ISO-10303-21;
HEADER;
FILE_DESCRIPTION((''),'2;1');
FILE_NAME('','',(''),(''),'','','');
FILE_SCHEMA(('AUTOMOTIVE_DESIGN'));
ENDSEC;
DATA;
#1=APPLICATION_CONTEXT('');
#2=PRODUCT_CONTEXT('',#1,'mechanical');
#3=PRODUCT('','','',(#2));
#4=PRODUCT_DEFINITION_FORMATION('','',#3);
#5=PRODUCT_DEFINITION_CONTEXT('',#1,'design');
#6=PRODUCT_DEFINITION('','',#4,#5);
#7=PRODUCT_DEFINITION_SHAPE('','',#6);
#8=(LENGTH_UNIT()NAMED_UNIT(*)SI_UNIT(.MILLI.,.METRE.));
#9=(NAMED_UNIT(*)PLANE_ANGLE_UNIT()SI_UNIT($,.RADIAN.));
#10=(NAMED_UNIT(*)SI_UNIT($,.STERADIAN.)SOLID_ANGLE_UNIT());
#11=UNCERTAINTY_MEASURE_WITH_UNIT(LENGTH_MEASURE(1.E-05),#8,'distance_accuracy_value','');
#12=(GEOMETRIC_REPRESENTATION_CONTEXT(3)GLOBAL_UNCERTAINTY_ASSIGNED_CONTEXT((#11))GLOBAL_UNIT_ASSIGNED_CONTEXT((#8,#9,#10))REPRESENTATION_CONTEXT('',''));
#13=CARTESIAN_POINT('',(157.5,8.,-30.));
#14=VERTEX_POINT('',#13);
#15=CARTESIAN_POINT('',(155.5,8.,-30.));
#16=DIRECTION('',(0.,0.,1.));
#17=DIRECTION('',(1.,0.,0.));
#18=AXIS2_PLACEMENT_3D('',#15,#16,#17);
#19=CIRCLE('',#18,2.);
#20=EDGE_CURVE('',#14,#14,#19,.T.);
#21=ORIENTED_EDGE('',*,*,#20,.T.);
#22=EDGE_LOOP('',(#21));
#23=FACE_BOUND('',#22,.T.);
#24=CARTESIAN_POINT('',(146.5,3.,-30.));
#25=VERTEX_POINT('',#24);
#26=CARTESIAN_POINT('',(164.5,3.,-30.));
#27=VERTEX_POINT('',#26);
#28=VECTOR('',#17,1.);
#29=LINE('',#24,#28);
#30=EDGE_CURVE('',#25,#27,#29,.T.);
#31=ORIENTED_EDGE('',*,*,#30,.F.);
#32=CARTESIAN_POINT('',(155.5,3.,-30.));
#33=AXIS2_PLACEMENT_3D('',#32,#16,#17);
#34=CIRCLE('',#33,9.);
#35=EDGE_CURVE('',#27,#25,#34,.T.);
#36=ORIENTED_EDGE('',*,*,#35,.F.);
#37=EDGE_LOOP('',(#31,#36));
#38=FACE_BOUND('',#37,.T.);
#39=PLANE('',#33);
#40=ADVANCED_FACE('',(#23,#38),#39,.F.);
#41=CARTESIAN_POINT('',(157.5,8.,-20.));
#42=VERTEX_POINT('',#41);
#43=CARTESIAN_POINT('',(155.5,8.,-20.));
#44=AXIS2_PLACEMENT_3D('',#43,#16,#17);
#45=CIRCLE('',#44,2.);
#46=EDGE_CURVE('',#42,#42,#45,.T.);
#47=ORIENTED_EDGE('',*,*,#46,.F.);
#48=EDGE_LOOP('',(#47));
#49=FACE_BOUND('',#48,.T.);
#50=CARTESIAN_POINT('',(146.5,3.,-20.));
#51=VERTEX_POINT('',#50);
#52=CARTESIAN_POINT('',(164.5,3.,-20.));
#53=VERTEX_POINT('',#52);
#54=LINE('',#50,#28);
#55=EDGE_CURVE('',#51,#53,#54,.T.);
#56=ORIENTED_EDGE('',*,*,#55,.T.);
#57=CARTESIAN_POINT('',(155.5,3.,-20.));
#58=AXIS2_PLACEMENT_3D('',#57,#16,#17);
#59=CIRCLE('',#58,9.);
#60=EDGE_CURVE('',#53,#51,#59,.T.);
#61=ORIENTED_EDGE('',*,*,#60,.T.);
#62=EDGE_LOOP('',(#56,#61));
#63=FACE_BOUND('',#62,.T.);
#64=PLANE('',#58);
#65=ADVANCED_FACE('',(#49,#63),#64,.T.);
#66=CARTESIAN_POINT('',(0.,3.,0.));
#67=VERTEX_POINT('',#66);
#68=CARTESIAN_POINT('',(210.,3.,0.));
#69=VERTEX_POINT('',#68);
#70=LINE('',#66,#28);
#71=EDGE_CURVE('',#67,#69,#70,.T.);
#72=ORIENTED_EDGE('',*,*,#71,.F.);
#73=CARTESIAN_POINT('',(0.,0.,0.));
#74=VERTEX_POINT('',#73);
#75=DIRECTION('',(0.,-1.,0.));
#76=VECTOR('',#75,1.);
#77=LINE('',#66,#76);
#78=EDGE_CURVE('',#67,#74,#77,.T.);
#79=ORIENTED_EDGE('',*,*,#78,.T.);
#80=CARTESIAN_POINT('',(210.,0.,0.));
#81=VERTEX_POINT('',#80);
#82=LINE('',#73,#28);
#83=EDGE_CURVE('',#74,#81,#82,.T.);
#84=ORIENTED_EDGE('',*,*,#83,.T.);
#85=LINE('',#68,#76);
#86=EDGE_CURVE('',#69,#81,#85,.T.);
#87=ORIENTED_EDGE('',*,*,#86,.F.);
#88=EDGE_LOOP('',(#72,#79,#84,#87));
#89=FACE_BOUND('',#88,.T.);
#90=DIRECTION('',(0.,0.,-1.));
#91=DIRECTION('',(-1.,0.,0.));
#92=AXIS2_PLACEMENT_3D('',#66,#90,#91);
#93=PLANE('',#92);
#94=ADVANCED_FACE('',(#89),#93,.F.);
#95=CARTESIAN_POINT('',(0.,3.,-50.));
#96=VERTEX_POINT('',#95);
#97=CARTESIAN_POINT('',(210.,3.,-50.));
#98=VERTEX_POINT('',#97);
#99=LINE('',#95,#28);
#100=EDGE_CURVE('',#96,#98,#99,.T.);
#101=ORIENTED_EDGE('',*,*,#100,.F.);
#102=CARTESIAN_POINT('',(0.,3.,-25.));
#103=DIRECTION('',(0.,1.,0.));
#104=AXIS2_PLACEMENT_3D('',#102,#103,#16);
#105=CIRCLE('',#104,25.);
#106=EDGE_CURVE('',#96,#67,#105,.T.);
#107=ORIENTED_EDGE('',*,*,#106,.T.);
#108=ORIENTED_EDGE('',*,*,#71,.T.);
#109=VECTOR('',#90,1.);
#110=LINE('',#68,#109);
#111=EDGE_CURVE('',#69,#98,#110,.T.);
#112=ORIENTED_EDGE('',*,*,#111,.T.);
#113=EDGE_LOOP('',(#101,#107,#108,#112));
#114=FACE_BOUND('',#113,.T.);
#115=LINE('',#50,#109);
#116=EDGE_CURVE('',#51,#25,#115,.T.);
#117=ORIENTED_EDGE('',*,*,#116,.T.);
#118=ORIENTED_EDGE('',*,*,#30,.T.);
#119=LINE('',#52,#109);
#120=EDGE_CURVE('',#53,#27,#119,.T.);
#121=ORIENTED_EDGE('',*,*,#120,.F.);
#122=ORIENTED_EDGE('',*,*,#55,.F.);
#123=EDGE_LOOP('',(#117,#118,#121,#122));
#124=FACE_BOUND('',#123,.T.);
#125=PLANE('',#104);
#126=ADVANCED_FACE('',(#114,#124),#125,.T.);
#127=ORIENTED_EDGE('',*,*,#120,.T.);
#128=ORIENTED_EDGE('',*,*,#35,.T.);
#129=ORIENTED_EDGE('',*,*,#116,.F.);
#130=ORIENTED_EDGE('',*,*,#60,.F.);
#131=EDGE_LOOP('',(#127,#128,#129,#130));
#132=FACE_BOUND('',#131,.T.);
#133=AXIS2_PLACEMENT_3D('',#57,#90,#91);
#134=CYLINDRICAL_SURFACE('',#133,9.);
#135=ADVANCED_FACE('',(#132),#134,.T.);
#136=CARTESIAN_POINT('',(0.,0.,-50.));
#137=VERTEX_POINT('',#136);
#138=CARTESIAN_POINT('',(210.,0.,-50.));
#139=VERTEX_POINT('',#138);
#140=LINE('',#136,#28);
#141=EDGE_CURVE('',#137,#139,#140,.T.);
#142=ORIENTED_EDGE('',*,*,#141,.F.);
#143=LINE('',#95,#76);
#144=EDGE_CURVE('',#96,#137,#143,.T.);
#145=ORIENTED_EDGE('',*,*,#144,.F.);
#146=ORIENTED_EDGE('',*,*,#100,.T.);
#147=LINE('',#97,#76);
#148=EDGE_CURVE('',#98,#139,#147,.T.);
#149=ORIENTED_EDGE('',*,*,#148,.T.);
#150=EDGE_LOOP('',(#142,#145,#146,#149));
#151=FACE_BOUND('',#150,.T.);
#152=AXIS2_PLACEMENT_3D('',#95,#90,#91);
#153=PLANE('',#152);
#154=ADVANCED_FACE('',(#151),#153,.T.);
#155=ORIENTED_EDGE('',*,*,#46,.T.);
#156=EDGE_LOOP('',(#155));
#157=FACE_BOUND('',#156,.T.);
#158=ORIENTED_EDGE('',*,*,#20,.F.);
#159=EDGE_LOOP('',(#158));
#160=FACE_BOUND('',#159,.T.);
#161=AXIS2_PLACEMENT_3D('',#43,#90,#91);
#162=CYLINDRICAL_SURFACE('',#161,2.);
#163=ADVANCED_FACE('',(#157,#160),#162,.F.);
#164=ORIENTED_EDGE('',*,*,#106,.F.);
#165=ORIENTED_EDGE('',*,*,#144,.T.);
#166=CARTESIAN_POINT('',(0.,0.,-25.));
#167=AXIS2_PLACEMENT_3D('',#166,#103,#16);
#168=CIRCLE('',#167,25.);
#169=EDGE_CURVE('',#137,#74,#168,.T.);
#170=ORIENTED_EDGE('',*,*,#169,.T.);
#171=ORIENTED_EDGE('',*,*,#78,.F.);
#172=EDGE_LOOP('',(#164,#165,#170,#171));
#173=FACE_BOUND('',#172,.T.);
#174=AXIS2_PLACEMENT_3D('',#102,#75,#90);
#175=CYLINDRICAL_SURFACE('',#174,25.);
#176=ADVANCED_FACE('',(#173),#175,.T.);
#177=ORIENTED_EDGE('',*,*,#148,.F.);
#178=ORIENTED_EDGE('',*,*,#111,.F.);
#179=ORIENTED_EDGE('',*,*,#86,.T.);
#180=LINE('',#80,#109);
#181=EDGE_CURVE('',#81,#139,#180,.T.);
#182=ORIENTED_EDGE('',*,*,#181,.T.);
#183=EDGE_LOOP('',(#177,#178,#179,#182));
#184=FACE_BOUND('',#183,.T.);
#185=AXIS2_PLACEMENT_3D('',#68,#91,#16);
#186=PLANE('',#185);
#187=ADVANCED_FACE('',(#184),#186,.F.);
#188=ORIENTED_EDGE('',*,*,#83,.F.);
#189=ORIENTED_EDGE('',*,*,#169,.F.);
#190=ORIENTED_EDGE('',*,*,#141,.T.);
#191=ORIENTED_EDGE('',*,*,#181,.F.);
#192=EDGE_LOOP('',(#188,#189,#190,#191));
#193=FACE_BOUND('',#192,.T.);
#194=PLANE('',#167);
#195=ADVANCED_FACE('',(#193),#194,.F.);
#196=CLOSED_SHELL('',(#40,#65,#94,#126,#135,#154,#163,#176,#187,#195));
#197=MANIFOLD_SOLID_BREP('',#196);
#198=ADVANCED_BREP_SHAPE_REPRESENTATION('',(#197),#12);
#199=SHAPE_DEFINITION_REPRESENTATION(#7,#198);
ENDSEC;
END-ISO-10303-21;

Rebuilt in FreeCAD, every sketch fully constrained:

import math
import FreeCAD as App
import Part
import Sketcher

V = App.Vector

doc = App.newDocument("Part")
params = doc.addObject("Spreadsheet::Sheet", "Params")
for row, (alias, value) in enumerate([
    ("sketch1_radius", "25 mm"),
    ("sketch1_width", "210 mm"),
    ("pad1_length", "3 mm"),
    ("sketch2_diameter", "4 mm"),
    ("sketch2_radius", "9 mm"),
    ("pad2_length", "10 mm"),
], start=1):
    params.set(f"A{row}", alias)
    params.set(f"B{row}", "=" + value)
    params.setAlias(f"B{row}", alias)

body = doc.addObject("PartDesign::Body", "Body")

sketch1 = body.newObject("Sketcher::SketchObject", "Sketch")
sketch1.AttachmentSupport = (doc.getObject("XZ_Plane"), [""])
sketch1.MapMode = "FlatFace"
sketch1.addGeometry(Part.LineSegment(V(0, 0, 0), V(210, 0, 0)), False)
sketch1.addGeometry(Part.LineSegment(V(210, 0, 0), V(210, -50, 0)), False)
sketch1.addGeometry(Part.LineSegment(V(210, -50, 0), V(0, -50, 0)), False)
sketch1.addGeometry(Part.ArcOfCircle(Part.Circle(V(0, -25, 0), V(0, 0, 1), 25), math.radians(90), math.radians(270)), False)
sketch1.addConstraint(Sketcher.Constraint("Coincident", 0, 2, 1, 1))
sketch1.addConstraint(Sketcher.Constraint("Coincident", 1, 2, 2, 1))
sketch1.addConstraint(Sketcher.Constraint("Tangent", 2, 2, 3, 2))
sketch1.addConstraint(Sketcher.Constraint("Tangent", 3, 1, 0, 1))
sketch1.addConstraint(Sketcher.Constraint("Horizontal", 0))
sketch1.addConstraint(Sketcher.Constraint("Vertical", 1))
sketch1.addConstraint(Sketcher.Constraint("Horizontal", 2))
sketch1.addConstraint(Sketcher.Constraint("Coincident", 3, 1, -1, 1))
sketch1.addConstraint(Sketcher.Constraint("Radius", 3, 25.0))
sketch1.addConstraint(Sketcher.Constraint("DistanceX", 0, 1, 0, 2, 210.0))
sketch1.setExpression("Constraints[8]", "Params.sketch1_radius")
sketch1.setExpression("Constraints[9]", "Params.sketch1_width")
pad1 = body.newObject("PartDesign::Pad", "Pad")
pad1.Profile = sketch1
pad1.setExpression("Length", "Params.pad1_length")
pad1.Reversed = True

sketch2 = body.newObject("Sketcher::SketchObject", "Sketch001")
sketch2.AttachmentSupport = (doc.getObject("XY_Plane"), [""])
sketch2.MapMode = "FlatFace"
sketch2.AttachmentOffset = App.Placement(V(0, 0, -25), App.Rotation())
sketch2.addGeometry(Part.LineSegment(V(146.5, 3, 0), V(164.5, 3, 0)), False)
sketch2.addGeometry(Part.ArcOfCircle(Part.Circle(V(155.5, 3, 0), V(0, 0, 1), 9), math.radians(0), math.radians(180)), False)
sketch2.addGeometry(Part.Circle(V(155.5, 8, 0), V(0, 0, 1), 2), False)
sketch2.addConstraint(Sketcher.Constraint("Coincident", 0, 1, 1, 2))
sketch2.addConstraint(Sketcher.Constraint("Coincident", 1, 1, 0, 2))
sketch2.addConstraint(Sketcher.Constraint("Horizontal", 0))
sketch2.addConstraint(Sketcher.Constraint("Horizontal", 1, 3, 0, 1))
sketch2.addConstraint(Sketcher.Constraint("Vertical", 1, 3, 2, 3))
sketch2.addConstraint(Sketcher.Constraint("Diameter", 2, 4.0))
sketch2.addConstraint(Sketcher.Constraint("Radius", 1, 9.0))
sketch2.addConstraint(Sketcher.Constraint("DistanceY", -1, 1, 1, 3, 3.0))
sketch2.addConstraint(Sketcher.Constraint("DistanceY", -1, 1, 2, 3, 8.0))
sketch2.addConstraint(Sketcher.Constraint("DistanceX", -1, 1, 1, 3, 155.5))
sketch2.setExpression("Constraints[5]", "Params.sketch2_diameter")
sketch2.setExpression("Constraints[6]", "Params.sketch2_radius")
pad2 = body.newObject("PartDesign::Pad", "Pad001")
pad2.Profile = sketch2
pad2.setExpression("Length", "Params.pad2_length")
pad2.Midplane = True

doc.recompute()
